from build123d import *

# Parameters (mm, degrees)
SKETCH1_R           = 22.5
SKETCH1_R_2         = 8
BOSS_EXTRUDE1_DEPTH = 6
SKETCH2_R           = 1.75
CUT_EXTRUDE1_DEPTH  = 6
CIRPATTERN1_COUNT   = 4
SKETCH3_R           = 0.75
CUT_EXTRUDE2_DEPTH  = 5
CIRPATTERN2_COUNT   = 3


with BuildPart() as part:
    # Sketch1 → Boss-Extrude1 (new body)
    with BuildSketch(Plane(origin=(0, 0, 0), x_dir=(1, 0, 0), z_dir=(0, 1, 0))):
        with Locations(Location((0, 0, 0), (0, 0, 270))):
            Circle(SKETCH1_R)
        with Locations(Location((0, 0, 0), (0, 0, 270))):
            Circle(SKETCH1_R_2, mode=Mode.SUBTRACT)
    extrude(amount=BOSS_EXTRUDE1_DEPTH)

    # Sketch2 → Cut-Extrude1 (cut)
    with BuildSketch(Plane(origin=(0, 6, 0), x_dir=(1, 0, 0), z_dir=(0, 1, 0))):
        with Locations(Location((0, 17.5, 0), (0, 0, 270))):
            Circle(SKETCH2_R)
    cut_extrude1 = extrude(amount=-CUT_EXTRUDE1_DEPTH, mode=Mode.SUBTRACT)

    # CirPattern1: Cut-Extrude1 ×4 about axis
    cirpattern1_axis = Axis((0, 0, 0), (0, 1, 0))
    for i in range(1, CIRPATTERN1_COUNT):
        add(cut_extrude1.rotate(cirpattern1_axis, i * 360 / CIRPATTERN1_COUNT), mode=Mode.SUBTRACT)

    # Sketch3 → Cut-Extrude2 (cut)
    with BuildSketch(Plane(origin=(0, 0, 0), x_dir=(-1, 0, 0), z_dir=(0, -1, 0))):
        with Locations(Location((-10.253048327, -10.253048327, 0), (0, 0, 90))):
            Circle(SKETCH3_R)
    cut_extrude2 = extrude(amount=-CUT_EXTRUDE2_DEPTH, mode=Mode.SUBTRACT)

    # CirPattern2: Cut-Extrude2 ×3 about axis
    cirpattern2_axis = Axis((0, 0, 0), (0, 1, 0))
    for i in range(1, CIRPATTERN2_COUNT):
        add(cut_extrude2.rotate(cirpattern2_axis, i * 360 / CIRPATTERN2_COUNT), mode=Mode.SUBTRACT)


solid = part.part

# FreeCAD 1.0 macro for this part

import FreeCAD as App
import Part
import Sketcher
from FreeCAD import Vector

doc = App.newDocument("Part")
body = doc.addObject("PartDesign::Body", "Body")

# Sketch on XZ plane
sketch1 = body.newObject("Sketcher::SketchObject", "Sketch")
sketch1.AttachmentSupport = (doc.getObject("XZ_Plane"), [""])
sketch1.MapMode = "FlatFace"
sketch1.addGeometry([
    Part.Circle(Vector(0, 0, 0), Vector(0, 0, 1), 22),
    Part.Circle(Vector(0, 0, 0), Vector(0, 0, 1), 8),
], False)
sketch1.addConstraint([
    Sketcher.Constraint("Coincident", 0, 3, -1, 1),
    Sketcher.Constraint("Coincident", 1, 3, -1, 1),
    Sketcher.Constraint("Diameter", 0, 45.0),
    Sketcher.Constraint("Diameter", 1, 16.0),
])
pad1 = body.newObject("PartDesign::Pad", "Pad")
pad1.Profile = sketch1
pad1.Length = 6
pad1.Reversed = True

# Sketch on XZ plane
sketch2 = body.newObject("Sketcher::SketchObject", "Sketch001")
sketch2.AttachmentSupport = (doc.getObject("XZ_Plane"), [""])
sketch2.MapMode = "FlatFace"
sketch2.AttachmentOffset = App.Placement(Vector(0, 0, -6), App.Rotation())
sketch2.addGeometry(Part.Circle(Vector(0, -17.5, 0), Vector(0, 0, 1), 1.8), False)
sketch2.addConstraint([
    Sketcher.Constraint("PointOnObject", 0, 3, -2),
    Sketcher.Constraint("Diameter", 0, 3.5),
    Sketcher.Constraint("DistanceY", 0, 3, -1, 1, 17.5),
])
pocket1 = body.newObject("PartDesign::Pocket", "Pocket")
pocket1.Profile = sketch2
pocket1.Length = 6
pocket1.Reversed = True
doc.recompute()

polarpattern = body.newObject("PartDesign::PolarPattern", "PolarPattern")
polarpattern.Originals = [pocket1]
polarpattern.Axis = (doc.getObject("Y_Axis"), [""])
polarpattern.Angle = 360
polarpattern.Occurrences = 4
body.Tip = polarpattern

# Sketch on XZ plane
sketch3 = body.newObject("Sketcher::SketchObject", "Sketch002")
sketch3.AttachmentSupport = (doc.getObject("XZ_Plane"), [""])
sketch3.MapMode = "FlatFace"
sketch3.addGeometry(Part.Circle(Vector(10.3, 10.3, 0), Vector(0, 0, 1), 0.8), False)
sketch3.addConstraint([
    Sketcher.Constraint("Diameter", 0, 1.5),
    Sketcher.Constraint("DistanceX", -1, 1, 0, 3, 10.253048),
    Sketcher.Constraint("DistanceY", -1, 1, 0, 3, 10.253048),
])
pocket2 = body.newObject("PartDesign::Pocket", "Pocket001")
pocket2.Profile = sketch3
pocket2.Length = 5
doc.recompute()

polarpattern2 = body.newObject("PartDesign::PolarPattern", "PolarPattern001")
polarpattern2.Originals = [pocket2]
polarpattern2.Axis = (doc.getObject("Y_Axis"), [""])
polarpattern2.Angle = 360
polarpattern2.Occurrences = 3
body.Tip = polarpattern2

doc.recompute()
